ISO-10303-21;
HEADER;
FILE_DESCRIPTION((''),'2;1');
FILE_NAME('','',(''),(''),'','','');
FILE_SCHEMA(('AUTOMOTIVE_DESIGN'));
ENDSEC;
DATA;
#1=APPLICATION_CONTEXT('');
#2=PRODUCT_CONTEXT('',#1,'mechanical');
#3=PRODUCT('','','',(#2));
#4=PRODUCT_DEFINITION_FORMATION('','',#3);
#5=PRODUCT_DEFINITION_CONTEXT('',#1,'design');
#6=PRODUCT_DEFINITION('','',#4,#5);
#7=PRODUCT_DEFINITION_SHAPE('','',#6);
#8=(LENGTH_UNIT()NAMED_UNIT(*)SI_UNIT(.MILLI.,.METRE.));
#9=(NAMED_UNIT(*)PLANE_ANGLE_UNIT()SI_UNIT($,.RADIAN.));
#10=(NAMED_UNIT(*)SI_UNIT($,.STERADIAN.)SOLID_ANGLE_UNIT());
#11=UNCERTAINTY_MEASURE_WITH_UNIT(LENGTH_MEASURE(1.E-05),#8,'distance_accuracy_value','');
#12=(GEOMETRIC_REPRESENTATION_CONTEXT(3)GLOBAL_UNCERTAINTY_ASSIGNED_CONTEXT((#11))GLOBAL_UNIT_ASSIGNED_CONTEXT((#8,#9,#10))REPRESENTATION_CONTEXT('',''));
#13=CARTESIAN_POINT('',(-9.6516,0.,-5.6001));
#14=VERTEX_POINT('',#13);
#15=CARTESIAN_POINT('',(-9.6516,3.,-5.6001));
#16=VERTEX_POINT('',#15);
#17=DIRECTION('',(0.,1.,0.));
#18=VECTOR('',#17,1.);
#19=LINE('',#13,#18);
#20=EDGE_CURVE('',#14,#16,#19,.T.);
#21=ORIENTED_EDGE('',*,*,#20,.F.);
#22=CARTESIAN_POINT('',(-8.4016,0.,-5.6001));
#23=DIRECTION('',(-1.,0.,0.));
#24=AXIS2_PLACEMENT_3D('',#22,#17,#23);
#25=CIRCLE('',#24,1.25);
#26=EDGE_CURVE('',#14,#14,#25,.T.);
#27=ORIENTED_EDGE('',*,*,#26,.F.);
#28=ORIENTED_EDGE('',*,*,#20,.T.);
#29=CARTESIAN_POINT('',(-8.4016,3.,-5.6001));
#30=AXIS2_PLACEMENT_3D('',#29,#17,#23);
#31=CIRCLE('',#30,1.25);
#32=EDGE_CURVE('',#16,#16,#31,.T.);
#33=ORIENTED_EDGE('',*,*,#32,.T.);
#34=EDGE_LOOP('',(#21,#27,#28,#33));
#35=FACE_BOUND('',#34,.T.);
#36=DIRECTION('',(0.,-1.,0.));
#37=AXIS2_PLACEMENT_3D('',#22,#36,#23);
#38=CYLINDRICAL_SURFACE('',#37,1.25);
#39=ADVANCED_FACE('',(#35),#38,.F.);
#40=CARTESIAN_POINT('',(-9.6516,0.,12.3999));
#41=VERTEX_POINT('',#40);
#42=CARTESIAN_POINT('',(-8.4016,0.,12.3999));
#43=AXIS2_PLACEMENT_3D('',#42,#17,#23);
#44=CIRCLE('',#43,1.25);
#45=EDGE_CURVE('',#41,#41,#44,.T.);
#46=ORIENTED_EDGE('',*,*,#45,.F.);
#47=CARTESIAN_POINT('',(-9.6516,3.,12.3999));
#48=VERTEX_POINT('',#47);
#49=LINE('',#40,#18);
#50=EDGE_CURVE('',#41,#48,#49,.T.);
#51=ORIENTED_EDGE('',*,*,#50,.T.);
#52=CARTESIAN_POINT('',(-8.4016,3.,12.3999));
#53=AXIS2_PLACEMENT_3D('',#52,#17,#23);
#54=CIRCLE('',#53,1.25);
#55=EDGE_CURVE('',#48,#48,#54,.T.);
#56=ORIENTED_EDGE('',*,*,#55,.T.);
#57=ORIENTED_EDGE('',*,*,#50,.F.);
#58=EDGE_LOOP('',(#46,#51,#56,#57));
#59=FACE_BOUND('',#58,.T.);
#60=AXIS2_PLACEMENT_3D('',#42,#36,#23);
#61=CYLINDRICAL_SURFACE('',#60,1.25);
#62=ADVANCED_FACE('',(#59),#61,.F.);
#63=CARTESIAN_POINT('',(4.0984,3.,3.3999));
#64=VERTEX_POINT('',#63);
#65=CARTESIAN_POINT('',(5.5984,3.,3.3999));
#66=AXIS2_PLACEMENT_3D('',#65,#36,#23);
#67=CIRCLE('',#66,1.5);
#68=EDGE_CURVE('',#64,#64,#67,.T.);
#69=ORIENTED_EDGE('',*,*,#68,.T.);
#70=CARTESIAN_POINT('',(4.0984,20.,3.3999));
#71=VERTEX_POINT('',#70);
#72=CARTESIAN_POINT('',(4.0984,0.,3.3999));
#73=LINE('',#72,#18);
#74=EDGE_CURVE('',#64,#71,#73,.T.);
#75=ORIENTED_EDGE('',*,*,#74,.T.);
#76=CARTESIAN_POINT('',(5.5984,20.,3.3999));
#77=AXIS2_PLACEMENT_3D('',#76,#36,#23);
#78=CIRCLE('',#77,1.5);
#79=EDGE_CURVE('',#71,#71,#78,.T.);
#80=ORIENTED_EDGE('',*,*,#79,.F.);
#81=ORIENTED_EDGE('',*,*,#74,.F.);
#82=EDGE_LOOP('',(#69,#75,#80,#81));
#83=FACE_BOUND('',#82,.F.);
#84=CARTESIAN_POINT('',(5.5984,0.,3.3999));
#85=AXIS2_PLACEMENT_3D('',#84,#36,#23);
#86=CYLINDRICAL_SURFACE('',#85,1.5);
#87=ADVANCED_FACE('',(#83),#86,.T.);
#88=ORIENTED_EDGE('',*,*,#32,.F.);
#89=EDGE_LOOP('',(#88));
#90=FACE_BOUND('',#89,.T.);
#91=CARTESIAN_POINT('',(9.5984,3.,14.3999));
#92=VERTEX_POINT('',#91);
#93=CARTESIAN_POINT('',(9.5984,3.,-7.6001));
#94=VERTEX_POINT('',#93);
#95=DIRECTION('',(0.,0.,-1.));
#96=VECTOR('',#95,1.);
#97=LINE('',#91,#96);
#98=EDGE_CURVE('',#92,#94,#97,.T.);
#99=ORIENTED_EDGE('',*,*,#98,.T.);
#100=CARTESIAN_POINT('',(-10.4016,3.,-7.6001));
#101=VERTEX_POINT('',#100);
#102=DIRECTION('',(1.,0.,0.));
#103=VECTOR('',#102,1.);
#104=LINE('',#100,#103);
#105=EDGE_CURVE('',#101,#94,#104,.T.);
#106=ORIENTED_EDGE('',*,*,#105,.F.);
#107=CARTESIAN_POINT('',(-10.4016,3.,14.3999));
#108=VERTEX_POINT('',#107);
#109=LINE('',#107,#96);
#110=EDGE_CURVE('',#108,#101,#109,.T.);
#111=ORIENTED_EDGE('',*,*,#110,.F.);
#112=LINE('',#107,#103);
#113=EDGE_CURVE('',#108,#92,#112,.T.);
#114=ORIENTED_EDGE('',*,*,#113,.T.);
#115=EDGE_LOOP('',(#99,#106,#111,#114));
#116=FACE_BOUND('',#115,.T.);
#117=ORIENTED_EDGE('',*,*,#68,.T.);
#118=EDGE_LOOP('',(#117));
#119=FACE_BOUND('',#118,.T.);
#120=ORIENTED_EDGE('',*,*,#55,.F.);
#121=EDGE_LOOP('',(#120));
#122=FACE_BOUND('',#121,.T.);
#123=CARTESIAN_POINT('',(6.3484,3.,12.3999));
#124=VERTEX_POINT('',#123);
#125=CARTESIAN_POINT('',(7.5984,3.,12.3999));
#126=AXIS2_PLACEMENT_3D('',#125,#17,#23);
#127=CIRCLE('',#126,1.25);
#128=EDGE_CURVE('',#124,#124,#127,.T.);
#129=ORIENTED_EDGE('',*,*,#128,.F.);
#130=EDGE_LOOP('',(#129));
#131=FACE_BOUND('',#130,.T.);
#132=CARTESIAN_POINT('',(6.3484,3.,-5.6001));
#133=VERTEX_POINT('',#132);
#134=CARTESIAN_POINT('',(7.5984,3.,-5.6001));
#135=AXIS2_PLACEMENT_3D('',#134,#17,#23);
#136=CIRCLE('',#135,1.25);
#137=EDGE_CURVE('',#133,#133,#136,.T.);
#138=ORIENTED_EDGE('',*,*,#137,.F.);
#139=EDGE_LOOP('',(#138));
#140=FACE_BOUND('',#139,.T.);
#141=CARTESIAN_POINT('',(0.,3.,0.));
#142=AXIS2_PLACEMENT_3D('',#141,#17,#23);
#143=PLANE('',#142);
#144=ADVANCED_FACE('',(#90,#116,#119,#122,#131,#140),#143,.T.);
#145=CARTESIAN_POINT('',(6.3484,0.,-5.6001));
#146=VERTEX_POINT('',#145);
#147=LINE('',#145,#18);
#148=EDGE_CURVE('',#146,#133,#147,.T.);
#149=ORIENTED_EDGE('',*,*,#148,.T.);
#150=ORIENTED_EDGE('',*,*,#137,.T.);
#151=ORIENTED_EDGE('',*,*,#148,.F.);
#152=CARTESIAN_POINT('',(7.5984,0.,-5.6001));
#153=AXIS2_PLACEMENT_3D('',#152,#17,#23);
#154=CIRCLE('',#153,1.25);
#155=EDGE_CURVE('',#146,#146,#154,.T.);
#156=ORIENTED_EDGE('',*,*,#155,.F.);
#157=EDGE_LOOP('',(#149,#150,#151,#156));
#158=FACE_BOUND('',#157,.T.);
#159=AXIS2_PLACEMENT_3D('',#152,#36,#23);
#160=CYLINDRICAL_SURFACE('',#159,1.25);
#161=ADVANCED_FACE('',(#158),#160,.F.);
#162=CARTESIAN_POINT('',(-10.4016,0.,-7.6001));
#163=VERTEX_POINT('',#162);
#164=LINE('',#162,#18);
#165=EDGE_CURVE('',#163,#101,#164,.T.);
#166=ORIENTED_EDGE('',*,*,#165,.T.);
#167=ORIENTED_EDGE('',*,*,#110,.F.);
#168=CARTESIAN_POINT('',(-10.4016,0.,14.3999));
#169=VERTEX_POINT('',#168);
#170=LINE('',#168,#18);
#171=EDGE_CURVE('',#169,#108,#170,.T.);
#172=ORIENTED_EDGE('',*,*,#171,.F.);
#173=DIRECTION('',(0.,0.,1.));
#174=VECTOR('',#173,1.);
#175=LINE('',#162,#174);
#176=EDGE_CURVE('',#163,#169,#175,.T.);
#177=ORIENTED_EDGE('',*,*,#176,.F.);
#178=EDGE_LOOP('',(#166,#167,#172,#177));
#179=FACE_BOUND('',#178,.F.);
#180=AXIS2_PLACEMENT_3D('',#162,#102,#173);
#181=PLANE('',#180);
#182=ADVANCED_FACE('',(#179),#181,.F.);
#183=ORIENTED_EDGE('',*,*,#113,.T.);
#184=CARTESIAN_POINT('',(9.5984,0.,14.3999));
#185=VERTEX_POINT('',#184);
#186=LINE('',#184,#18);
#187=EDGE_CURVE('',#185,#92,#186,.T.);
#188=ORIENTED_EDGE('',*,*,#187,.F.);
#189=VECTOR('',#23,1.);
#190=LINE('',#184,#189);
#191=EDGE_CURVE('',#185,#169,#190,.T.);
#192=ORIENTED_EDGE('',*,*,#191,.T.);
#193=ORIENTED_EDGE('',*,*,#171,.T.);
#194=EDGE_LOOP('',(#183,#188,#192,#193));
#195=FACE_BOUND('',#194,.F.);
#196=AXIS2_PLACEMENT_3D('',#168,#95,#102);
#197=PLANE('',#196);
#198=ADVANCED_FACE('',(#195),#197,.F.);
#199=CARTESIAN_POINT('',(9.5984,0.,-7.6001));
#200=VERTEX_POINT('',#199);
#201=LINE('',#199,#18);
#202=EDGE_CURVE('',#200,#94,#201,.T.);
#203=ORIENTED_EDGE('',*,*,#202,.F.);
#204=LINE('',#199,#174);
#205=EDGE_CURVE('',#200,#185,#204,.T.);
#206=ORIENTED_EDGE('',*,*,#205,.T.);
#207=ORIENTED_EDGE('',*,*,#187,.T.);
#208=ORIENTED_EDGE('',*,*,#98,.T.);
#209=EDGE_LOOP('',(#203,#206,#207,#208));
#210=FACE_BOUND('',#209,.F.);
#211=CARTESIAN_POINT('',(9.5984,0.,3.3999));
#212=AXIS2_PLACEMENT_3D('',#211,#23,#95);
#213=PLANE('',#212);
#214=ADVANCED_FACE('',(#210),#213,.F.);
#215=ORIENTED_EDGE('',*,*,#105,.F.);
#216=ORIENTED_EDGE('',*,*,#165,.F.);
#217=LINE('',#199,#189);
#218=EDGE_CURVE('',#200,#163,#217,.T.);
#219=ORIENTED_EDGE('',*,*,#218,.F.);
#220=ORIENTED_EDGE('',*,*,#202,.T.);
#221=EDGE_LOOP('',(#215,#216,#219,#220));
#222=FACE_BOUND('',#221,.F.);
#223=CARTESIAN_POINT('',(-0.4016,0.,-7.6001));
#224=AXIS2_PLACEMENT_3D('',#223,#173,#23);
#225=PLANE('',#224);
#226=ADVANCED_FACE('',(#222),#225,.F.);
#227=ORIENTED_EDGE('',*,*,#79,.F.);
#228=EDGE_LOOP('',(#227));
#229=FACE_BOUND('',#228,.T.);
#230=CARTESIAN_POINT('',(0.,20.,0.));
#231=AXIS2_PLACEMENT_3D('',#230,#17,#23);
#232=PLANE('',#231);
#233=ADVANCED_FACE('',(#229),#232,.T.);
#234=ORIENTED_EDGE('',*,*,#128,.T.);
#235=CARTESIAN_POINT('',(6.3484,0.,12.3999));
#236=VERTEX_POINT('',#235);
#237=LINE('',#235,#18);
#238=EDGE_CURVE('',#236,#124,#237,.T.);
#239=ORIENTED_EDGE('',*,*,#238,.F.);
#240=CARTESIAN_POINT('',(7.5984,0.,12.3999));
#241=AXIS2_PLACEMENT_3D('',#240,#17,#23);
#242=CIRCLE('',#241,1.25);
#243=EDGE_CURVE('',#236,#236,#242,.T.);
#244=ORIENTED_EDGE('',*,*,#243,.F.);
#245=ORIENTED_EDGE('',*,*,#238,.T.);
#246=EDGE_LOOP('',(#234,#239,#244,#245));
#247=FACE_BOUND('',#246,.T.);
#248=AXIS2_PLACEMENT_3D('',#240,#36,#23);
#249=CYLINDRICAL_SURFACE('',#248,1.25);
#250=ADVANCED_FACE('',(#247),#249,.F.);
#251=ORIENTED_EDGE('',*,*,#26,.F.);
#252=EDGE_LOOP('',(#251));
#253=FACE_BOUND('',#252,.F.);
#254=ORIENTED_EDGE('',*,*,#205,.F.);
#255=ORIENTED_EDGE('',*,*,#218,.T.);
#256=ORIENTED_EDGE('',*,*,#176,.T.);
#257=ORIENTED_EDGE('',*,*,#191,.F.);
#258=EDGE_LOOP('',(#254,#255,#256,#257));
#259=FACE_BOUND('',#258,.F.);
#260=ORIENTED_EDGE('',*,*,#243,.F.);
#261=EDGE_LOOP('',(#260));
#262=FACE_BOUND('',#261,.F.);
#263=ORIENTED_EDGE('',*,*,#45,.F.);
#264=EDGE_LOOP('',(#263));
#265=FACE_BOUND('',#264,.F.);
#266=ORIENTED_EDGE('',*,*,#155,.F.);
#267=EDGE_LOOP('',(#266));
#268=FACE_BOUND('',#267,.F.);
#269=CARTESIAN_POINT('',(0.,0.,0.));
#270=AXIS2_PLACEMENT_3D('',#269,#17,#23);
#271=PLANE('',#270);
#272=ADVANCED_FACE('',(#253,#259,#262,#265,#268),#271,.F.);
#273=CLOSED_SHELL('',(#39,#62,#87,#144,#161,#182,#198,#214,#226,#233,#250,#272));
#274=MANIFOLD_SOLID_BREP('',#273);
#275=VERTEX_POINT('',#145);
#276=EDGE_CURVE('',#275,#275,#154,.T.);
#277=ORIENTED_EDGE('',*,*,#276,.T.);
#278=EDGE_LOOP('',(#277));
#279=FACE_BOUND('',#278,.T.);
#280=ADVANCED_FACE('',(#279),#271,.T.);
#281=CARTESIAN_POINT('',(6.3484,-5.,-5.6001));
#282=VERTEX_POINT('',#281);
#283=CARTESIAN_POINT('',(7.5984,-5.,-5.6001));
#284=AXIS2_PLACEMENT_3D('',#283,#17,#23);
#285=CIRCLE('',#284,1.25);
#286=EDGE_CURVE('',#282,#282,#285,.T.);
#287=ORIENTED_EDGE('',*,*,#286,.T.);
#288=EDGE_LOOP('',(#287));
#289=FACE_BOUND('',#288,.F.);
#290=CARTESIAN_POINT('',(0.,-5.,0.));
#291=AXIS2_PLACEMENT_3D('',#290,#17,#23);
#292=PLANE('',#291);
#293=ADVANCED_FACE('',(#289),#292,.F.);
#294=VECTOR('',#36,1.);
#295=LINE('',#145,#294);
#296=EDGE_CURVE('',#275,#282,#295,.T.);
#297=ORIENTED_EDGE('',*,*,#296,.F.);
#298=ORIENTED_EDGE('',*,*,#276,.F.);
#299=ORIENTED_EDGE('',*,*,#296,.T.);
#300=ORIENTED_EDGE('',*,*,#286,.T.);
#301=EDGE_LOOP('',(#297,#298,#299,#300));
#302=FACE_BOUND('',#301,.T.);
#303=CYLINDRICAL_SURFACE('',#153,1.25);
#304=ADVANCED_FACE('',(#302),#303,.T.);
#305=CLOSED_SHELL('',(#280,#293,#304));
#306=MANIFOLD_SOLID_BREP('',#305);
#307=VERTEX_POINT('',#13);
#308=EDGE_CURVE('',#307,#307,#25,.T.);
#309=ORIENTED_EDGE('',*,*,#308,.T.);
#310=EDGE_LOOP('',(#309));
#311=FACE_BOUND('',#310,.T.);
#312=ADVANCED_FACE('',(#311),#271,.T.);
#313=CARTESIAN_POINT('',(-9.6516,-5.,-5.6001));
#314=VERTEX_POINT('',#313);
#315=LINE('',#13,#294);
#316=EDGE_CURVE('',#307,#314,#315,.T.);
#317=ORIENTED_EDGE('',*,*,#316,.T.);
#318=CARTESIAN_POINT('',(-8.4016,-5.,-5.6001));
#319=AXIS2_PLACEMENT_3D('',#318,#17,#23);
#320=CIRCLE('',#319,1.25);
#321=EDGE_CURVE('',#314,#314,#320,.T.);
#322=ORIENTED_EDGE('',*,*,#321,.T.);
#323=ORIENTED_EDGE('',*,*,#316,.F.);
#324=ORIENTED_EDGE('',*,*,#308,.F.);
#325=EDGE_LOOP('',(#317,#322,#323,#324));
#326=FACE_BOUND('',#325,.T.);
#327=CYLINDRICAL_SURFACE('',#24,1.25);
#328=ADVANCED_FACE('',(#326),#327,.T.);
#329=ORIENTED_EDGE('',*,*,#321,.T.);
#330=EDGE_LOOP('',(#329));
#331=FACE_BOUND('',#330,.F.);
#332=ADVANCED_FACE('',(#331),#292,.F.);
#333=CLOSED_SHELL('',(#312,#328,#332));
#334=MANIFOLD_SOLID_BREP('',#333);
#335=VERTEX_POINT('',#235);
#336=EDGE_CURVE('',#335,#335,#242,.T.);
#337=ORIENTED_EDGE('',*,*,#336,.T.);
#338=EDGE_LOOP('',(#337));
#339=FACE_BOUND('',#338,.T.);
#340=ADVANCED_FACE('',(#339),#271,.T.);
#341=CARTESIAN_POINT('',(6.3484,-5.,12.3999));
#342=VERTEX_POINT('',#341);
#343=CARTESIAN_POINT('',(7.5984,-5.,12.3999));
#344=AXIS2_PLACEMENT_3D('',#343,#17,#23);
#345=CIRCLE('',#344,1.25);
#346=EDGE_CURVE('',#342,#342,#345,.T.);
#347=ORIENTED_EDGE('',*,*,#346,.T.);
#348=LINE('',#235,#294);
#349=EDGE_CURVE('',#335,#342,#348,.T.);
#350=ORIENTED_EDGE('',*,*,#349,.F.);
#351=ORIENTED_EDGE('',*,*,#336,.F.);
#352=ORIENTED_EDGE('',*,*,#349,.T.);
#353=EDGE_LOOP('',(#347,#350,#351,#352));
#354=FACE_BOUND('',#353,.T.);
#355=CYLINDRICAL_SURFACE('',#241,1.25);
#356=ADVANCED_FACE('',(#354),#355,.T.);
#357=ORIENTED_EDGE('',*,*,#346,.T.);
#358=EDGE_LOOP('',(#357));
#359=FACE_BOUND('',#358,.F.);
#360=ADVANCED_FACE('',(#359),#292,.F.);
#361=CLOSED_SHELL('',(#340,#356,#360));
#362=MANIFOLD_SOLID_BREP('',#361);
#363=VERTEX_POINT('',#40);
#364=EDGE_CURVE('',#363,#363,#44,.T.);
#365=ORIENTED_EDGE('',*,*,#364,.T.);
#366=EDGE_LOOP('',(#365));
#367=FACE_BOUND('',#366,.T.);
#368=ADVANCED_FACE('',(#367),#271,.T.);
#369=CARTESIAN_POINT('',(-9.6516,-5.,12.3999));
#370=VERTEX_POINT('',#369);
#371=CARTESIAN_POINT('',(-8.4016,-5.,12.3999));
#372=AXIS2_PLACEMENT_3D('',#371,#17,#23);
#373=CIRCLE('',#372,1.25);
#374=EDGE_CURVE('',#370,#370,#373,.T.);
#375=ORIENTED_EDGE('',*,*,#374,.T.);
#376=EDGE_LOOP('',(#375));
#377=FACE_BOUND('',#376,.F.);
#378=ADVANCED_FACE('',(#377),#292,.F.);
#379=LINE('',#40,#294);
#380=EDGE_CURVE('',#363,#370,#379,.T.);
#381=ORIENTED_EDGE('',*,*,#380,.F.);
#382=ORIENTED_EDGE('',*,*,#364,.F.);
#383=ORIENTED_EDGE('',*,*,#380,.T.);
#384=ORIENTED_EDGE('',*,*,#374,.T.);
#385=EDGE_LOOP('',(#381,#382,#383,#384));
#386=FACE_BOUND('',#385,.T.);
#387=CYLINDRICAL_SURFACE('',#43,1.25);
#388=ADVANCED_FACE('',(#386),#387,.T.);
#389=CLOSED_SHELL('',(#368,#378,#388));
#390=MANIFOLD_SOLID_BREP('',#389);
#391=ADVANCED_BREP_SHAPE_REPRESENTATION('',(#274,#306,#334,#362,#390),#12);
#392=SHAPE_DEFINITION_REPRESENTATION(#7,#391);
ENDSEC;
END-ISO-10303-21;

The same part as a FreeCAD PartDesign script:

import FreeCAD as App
import Part
import Sketcher

V = App.Vector

doc = App.newDocument("Part")
body = doc.addObject("PartDesign::Body", "Body")
body.AllowCompound = True

# Sketch on XZ plane
sketch1 = body.newObject("Sketcher::SketchObject", "Sketch")
sketch1.AttachmentSupport = (doc.getObject("XZ_Plane"), [""])
sketch1.MapMode = "FlatFace"
sketch1.addGeometry(Part.LineSegment(V(-10.4016, -7.6001, 0), V(-10.4016, 14.3999, 0)), False)
sketch1.addGeometry(Part.LineSegment(V(-10.4016, 14.3999, 0), V(9.5984, 14.3999, 0)), False)
sketch1.addGeometry(Part.LineSegment(V(9.5984, 14.3999, 0), V(9.5984, -7.6001, 0)), False)
sketch1.addGeometry(Part.LineSegment(V(9.5984, -7.6001, 0), V(-10.4016, -7.6001, 0)), False)
sketch1.addGeometry(Part.Circle(V(-8.4016, -5.6001, 0), V(0, 0, 1), 1.25), False)
sketch1.addGeometry(Part.Circle(V(7.5984, -5.6001, 0), V(0, 0, 1), 1.25), False)
sketch1.addGeometry(Part.Circle(V(5.5984, 3.3999, 0), V(0, 0, 1), 1.5), False)
sketch1.addGeometry(Part.Circle(V(-8.4016, 12.3999, 0), V(0, 0, 1), 1.25), False)
sketch1.addGeometry(Part.Circle(V(7.5984, 12.3999, 0), V(0, 0, 1), 1.25), False)
sketch1.addConstraint(Sketcher.Constraint("Coincident", 0, 2, 1, 1))
sketch1.addConstraint(Sketcher.Constraint("Coincident", 1, 2, 2, 1))
sketch1.addConstraint(Sketcher.Constraint("Coincident", 2, 2, 3, 1))
sketch1.addConstraint(Sketcher.Constraint("Coincident", 3, 2, 0, 1))
sketch1.addConstraint(Sketcher.Constraint("Vertical", 0))
sketch1.addConstraint(Sketcher.Constraint("Horizontal", 1))
sketch1.addConstraint(Sketcher.Constraint("Vertical", 2))
sketch1.addConstraint(Sketcher.Constraint("Horizontal", 3))
sketch1.addConstraint(Sketcher.Constraint("Equal", 4, 5))
sketch1.addConstraint(Sketcher.Constraint("Equal", 5, 7))
sketch1.addConstraint(Sketcher.Constraint("Equal", 7, 8))
sketch1.addConstraint(Sketcher.Constraint("Horizontal", 4, 3, 5, 3))
sketch1.addConstraint(Sketcher.Constraint("Horizontal", 7, 3, 8, 3))
sketch1.addConstraint(Sketcher.Constraint("Vertical", 4, 3, 7, 3))
sketch1.addConstraint(Sketcher.Constraint("Vertical", 5, 3, 8, 3))
sketch1.addConstraint(Sketcher.Constraint("Diameter", 6, 3.0))
sketch1.addConstraint(Sketcher.Constraint("Diameter", 4, 2.5))
sketch1.addConstraint(Sketcher.Constraint("DistanceX", 1, 1, 1, 2, 20.0))
sketch1.addConstraint(Sketcher.Constraint("DistanceY", 0, 1, 0, 2, 22.0))
sketch1.addConstraint(Sketcher.Constraint("DistanceX", 4, 3, 5, 3, 16.0))
sketch1.addConstraint(Sketcher.Constraint("DistanceY", 4, 3, 7, 3, 18.0))
sketch1.addConstraint(Sketcher.Constraint("DistanceX", 0, 2, 8, 3, 18.0))
sketch1.addConstraint(Sketcher.Constraint("DistanceX", 0, 2, 6, 3, 16.0))
sketch1.addConstraint(Sketcher.Constraint("DistanceY", 4, 3, 0, 2, 20.0))
sketch1.addConstraint(Sketcher.Constraint("DistanceY", 5, 3, 6, 3, 9.0))
sketch1.addConstraint(Sketcher.Constraint("DistanceY", 4, 3, -1, 1, 5.6))
sketch1.addConstraint(Sketcher.Constraint("DistanceX", 4, 3, -1, 1, 8.4016))
pad1 = body.newObject("PartDesign::Pad", "Pad")
pad1.Profile = sketch1
pad1.Length = 3
pad1.Reversed = True

# Sketch on XZ plane
sketch2 = body.newObject("Sketcher::SketchObject", "Sketch001")
sketch2.AttachmentSupport = (doc.getObject("XZ_Plane"), [""])
sketch2.MapMode = "FlatFace"
sketch2.addGeometry(Part.Circle(V(5.5984, 3.3999, 0), V(0, 0, 1), 1.5), False)
sketch2.addConstraint(Sketcher.Constraint("Diameter", 0, 3.0))
sketch2.addConstraint(Sketcher.Constraint("DistanceY", -1, 1, 0, 3, 3.4))
sketch2.addConstraint(Sketcher.Constraint("DistanceX", -1, 1, 0, 3, 5.5984))
pad2 = body.newObject("PartDesign::Pad", "Pad001")
pad2.Profile = sketch2
pad2.Length = 20
pad2.Reversed = True

# Sketch on XZ plane
sketch3 = body.newObject("Sketcher::SketchObject", "Sketch002")
sketch3.AttachmentSupport = (doc.getObject("XZ_Plane"), [""])
sketch3.MapMode = "FlatFace"
sketch3.addGeometry(Part.Circle(V(-8.4016, 12.3999, 0), V(0, 0, 1), 1.25), False)
sketch3.addGeometry(Part.Circle(V(-8.4016, -5.6001, 0), V(0, 0, 1), 1.25), False)
sketch3.addGeometry(Part.Circle(V(7.5984, 12.3999, 0), V(0, 0, 1), 1.25), False)
sketch3.addGeometry(Part.Circle(V(7.5984, -5.6001, 0), V(0, 0, 1), 1.25), False)
sketch3.addConstraint(Sketcher.Constraint("Equal", 0, 1))
sketch3.addConstraint(Sketcher.Constraint("Equal", 1, 2))
sketch3.addConstraint(Sketcher.Constraint("Equal", 2, 3))
sketch3.addConstraint(Sketcher.Constraint("Horizontal", 0, 3, 2, 3))
sketch3.addConstraint(Sketcher.Constraint("Horizontal", 1, 3, 3, 3))
sketch3.addConstraint(Sketcher.Constraint("Vertical", 0, 3, 1, 3))
sketch3.addConstraint(Sketcher.Constraint("Vertical", 2, 3, 3, 3))
sketch3.addConstraint(Sketcher.Constraint("Diameter", 0, 2.5))
sketch3.addConstraint(Sketcher.Constraint("DistanceY", 1, 3, 0, 3, 18.0))
sketch3.addConstraint(Sketcher.Constraint("DistanceX", 0, 3, 2, 3, 16.0))
sketch3.addConstraint(Sketcher.Constraint("DistanceY", -1, 1, 0, 3, 12.4))
sketch3.addConstraint(Sketcher.Constraint("DistanceX", 0, 3, -1, 1, 8.4016))
pad3 = body.newObject("PartDesign::Pad", "Pad002")
pad3.Profile = sketch3
pad3.Length = 5

doc.recompute()
